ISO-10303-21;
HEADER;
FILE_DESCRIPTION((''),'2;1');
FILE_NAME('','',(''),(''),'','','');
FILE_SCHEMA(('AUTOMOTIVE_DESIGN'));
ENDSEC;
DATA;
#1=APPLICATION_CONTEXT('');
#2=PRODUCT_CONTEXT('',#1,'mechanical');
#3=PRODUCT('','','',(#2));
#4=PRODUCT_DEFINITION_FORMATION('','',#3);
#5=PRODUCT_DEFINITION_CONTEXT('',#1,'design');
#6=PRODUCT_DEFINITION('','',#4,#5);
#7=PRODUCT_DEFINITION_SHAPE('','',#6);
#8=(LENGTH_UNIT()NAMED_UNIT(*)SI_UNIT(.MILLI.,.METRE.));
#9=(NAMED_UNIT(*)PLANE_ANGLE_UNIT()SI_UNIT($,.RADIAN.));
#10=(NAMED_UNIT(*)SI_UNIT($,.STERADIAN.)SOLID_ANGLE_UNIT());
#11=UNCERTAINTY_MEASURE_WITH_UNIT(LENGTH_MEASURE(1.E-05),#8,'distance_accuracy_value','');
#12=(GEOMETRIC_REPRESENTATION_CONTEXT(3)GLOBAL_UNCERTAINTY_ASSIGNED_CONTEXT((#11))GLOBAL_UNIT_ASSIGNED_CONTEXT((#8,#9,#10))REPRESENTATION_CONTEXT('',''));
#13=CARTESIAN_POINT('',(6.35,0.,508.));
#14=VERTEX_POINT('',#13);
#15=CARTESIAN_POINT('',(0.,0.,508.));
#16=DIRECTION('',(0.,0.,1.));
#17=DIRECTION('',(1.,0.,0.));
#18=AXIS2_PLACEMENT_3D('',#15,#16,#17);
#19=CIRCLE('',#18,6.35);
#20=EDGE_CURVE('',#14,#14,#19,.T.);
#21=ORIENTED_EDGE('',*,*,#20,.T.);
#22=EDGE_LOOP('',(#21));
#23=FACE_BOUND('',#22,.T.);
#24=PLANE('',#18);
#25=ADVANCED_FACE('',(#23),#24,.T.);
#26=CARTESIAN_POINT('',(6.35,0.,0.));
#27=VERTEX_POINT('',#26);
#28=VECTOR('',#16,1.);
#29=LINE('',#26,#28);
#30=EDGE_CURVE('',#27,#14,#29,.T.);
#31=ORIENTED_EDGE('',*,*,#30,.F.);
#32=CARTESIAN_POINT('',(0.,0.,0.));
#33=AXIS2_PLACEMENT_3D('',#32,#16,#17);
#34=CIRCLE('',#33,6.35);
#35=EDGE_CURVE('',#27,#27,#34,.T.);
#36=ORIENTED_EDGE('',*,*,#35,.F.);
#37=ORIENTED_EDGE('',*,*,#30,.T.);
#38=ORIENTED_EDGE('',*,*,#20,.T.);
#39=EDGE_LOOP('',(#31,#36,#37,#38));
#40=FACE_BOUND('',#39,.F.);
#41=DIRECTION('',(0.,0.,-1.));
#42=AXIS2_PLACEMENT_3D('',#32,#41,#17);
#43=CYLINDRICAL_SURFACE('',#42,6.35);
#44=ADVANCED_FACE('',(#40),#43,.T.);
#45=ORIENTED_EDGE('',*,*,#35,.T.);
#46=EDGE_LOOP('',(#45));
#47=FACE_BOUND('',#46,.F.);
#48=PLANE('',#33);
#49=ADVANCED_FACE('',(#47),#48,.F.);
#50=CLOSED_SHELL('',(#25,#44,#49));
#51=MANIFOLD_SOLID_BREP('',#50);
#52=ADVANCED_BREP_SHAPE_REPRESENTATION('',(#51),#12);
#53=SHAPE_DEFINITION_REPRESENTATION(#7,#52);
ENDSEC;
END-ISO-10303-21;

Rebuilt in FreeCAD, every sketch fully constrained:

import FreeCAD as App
import Part
import Sketcher
from FreeCAD import Vector
Q = App.Units.Quantity

doc = App.newDocument("Part")
params = doc.addObject("Spreadsheet::Sheet", "Params")
for row, (alias, value) in enumerate([
    ("sketch1_diameter", "0.5 in"),
    ("pad1_length", "20 in"),
], start=1):
    params.set(f"A{row}", alias)
    params.set(f"B{row}", "=" + value)
    params.setAlias(f"B{row}", alias)

body = doc.addObject("PartDesign::Body", "Body")

# Sketch on XY plane
sketch1 = doc.addObject("Sketcher::SketchObject", "Sketch")
body.addObject(sketch1)
sketch1.AttachmentSupport = (doc.XY_Plane, [""])
sketch1.MapMode = "FlatFace"
sketch1.addGeometry(Part.Circle(Vector(0, 0, 0), Vector(0, 0, 1), 6), False)
sketch1.addConstraint([
    Sketcher.Constraint("Coincident", 0, 3, -1, 1),
    Sketcher.Constraint("Diameter", 0, Q("0.5 in")),
])
sketch1.setExpression("Constraints[1]", "Params.sketch1_diameter")
pad1 = doc.addObject("PartDesign::Pad", "Pad")
body.addObject(pad1)
pad1.Profile = sketch1
pad1.setExpression("Length", "Params.pad1_length")

doc.recompute()
